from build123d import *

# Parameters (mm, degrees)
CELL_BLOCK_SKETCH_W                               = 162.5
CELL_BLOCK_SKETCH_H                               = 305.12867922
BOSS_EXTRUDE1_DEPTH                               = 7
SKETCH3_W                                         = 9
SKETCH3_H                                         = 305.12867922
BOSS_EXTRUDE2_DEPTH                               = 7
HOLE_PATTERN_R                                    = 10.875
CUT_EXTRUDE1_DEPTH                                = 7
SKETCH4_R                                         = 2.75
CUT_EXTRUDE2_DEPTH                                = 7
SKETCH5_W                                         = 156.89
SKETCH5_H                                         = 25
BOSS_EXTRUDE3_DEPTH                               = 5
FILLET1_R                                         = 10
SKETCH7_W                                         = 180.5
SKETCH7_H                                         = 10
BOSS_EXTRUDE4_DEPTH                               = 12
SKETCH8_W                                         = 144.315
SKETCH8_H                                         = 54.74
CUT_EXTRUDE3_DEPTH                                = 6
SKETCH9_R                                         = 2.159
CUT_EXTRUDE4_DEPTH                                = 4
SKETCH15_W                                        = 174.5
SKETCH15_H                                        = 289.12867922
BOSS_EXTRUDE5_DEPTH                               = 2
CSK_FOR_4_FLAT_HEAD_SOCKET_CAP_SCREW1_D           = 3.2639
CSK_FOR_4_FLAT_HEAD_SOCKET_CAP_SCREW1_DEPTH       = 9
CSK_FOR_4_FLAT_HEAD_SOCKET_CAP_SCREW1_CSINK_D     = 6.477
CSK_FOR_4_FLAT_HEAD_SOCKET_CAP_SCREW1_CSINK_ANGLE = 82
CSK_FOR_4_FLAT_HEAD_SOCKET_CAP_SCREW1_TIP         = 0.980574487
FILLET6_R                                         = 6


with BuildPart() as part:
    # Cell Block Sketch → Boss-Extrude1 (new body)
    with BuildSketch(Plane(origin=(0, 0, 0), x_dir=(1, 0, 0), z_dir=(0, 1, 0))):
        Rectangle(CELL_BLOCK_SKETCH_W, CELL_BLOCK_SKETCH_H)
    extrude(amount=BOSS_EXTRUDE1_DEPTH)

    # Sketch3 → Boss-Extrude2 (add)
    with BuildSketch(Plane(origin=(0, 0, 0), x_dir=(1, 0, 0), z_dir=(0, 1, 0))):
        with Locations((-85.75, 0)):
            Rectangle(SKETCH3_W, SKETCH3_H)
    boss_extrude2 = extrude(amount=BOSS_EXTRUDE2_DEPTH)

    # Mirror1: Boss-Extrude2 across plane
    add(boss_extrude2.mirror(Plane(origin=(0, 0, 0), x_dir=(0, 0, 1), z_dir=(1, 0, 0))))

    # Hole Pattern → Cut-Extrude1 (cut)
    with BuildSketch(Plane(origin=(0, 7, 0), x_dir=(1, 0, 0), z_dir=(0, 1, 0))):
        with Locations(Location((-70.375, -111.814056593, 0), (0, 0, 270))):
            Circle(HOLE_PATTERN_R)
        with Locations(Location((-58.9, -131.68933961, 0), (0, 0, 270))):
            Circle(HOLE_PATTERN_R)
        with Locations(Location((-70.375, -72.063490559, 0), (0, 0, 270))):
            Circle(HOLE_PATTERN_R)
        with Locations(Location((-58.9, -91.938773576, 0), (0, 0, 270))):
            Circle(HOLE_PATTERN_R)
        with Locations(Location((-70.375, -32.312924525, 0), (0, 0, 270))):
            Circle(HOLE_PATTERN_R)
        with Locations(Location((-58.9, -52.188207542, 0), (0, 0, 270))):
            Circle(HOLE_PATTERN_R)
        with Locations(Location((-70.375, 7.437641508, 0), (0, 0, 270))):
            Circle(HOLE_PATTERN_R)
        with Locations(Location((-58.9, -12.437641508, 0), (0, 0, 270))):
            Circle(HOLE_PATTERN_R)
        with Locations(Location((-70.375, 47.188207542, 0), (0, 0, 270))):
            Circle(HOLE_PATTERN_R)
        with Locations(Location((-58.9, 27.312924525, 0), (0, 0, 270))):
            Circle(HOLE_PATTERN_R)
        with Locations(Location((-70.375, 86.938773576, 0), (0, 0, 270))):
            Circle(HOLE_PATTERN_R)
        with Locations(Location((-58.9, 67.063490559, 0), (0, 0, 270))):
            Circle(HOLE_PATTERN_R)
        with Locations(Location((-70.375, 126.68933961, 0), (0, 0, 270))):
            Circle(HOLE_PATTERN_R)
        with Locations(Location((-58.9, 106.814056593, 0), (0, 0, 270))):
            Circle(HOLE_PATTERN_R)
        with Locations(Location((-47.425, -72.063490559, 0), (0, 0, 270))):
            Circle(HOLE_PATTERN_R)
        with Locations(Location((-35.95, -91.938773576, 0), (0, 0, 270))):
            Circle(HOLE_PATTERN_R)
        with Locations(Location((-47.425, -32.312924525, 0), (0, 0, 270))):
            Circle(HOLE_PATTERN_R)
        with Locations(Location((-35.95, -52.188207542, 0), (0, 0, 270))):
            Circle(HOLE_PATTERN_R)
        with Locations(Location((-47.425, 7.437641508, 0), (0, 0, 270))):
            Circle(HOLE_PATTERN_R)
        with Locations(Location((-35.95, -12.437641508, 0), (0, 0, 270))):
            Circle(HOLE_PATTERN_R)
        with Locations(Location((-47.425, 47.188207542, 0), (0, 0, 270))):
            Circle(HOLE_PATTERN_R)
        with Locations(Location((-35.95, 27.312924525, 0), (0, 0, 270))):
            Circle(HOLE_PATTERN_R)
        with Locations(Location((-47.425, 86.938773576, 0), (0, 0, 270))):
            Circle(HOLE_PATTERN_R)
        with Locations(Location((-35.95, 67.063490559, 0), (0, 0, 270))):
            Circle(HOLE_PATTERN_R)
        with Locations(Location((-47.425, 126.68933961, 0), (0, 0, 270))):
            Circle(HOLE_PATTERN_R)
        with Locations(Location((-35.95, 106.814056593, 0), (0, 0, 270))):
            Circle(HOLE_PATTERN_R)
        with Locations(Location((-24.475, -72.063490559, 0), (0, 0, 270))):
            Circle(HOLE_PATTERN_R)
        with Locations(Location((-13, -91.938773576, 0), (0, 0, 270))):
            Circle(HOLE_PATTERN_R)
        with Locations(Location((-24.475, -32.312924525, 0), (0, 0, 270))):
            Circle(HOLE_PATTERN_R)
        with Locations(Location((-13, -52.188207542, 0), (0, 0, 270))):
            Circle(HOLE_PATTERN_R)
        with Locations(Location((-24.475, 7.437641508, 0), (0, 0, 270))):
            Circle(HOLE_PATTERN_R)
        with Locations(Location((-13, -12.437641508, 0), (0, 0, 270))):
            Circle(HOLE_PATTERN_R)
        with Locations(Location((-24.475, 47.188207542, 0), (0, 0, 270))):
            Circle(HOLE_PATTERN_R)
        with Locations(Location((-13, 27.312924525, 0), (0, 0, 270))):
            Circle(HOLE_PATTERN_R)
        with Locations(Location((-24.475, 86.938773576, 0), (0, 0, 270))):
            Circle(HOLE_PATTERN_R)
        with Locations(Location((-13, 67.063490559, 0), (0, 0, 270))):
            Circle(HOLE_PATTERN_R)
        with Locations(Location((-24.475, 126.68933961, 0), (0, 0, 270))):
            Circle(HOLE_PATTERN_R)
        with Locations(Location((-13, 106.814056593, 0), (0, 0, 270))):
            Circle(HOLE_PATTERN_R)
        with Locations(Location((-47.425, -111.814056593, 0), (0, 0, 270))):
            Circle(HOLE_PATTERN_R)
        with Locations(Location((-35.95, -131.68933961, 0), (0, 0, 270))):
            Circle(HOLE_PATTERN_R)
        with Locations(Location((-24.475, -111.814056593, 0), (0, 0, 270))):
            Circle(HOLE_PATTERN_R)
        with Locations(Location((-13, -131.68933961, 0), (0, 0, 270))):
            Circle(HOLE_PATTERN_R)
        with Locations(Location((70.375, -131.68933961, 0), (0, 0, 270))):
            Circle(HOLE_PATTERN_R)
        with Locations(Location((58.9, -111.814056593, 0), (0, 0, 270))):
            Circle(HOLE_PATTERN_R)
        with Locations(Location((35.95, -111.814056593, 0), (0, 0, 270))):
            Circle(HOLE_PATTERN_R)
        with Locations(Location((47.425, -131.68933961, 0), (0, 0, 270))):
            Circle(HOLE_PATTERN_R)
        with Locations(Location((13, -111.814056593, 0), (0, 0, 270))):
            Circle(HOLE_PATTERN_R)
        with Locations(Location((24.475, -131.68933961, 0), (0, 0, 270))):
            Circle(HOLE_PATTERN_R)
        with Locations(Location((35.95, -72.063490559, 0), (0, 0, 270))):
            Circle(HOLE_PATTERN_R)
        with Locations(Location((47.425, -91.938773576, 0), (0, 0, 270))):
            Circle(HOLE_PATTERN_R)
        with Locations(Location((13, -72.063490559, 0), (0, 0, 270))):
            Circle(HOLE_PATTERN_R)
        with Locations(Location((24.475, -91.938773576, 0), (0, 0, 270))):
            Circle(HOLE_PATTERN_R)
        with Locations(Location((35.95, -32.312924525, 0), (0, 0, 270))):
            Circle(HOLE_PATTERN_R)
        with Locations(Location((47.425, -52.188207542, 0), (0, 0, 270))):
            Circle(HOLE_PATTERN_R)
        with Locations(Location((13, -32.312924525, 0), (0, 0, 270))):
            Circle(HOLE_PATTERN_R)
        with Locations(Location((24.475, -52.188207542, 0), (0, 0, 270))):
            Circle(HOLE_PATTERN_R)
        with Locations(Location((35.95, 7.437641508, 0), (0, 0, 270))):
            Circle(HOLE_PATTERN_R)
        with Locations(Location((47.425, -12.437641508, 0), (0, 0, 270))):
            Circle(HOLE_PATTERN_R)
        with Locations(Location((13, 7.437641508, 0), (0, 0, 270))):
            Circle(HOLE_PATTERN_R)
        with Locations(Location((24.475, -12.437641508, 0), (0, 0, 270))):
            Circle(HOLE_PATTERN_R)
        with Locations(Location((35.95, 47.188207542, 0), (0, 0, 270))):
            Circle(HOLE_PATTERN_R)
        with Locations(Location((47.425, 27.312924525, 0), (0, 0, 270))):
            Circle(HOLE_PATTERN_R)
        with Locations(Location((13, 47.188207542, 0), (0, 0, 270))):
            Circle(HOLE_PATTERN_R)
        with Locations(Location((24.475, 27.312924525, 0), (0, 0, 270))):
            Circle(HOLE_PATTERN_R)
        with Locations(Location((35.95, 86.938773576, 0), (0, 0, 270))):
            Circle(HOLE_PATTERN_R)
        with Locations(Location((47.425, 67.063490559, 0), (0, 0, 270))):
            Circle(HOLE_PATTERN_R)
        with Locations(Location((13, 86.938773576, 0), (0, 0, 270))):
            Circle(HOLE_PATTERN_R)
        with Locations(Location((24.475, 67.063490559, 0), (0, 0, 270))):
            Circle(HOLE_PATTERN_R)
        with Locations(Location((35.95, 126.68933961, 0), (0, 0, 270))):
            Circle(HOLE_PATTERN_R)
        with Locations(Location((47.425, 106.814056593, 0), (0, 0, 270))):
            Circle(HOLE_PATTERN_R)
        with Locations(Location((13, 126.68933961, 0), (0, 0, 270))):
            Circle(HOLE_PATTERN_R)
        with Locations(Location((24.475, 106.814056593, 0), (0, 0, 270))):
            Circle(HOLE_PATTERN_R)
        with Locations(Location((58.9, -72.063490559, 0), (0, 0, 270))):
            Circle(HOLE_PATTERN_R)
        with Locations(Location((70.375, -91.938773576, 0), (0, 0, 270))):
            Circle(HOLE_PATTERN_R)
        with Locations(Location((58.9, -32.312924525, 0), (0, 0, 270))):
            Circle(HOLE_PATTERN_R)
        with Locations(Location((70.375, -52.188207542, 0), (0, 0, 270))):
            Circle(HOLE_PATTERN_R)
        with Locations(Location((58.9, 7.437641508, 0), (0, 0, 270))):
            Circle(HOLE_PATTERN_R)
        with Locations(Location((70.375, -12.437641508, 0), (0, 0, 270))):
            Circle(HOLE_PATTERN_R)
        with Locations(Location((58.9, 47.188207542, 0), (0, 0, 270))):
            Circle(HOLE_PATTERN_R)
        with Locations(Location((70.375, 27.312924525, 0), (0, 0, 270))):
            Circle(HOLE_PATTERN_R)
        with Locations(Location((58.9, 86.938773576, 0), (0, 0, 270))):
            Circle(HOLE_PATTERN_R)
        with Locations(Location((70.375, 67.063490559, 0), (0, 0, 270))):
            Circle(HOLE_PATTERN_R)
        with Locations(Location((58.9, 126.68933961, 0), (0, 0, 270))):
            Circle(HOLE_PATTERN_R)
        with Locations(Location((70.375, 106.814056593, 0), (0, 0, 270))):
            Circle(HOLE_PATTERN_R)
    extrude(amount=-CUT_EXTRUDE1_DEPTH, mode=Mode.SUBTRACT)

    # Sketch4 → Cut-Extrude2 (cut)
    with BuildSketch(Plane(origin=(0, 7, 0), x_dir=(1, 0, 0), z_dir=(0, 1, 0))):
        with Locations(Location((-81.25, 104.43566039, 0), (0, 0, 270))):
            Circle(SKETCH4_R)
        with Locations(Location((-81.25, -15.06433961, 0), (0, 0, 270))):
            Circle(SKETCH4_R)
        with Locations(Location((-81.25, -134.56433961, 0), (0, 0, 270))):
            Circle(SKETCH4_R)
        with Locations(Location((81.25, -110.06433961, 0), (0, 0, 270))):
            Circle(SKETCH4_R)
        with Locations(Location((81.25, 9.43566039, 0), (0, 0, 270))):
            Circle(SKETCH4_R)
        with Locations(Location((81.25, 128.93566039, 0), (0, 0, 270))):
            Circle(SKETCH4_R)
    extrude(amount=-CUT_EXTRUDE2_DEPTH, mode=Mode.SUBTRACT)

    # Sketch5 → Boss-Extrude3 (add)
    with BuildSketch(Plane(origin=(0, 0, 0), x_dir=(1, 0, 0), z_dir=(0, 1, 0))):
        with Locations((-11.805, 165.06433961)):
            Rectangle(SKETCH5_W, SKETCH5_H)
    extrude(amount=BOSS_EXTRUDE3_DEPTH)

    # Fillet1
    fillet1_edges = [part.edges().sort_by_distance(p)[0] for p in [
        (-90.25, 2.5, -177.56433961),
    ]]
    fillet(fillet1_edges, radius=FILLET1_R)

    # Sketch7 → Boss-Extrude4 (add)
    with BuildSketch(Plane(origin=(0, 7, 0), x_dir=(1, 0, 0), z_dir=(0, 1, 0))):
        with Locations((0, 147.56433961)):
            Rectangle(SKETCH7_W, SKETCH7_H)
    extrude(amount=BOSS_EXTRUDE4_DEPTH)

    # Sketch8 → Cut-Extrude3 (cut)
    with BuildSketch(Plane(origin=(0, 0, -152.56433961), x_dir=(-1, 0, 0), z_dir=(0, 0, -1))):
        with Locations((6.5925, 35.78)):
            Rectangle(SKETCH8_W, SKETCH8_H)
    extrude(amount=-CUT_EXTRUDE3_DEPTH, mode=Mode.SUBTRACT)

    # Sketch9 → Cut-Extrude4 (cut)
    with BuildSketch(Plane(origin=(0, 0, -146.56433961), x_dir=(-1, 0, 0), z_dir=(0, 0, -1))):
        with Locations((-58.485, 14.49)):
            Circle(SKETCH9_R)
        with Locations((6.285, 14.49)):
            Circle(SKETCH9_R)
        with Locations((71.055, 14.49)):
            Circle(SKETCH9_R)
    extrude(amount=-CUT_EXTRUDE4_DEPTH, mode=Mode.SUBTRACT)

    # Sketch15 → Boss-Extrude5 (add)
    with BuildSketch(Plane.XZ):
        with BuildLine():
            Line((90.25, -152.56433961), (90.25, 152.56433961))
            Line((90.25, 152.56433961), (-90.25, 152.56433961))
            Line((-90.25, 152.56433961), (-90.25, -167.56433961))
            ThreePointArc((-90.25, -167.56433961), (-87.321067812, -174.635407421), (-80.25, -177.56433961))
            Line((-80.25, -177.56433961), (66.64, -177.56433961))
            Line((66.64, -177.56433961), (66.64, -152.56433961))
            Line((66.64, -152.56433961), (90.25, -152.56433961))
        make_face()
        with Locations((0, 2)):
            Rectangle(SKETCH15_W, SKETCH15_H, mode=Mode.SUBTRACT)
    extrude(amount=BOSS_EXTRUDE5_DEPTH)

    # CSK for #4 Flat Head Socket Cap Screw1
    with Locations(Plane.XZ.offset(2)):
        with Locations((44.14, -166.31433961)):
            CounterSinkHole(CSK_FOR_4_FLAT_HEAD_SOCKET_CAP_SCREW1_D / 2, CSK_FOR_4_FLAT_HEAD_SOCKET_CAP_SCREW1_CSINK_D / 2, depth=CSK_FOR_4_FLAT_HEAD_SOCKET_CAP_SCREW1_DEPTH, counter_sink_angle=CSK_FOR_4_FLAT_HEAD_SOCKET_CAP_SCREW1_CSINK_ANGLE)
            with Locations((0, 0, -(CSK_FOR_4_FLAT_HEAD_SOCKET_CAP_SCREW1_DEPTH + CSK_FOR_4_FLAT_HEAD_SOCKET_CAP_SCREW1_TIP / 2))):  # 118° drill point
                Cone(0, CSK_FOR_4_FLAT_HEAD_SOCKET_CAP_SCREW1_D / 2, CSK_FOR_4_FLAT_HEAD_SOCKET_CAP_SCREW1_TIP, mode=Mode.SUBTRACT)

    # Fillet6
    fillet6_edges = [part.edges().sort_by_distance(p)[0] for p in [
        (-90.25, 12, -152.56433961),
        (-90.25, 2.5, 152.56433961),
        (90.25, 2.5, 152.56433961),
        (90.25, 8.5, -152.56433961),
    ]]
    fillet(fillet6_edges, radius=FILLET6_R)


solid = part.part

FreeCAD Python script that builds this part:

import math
import FreeCAD as App
import Part
import Sketcher
from FreeCAD import Vector
Q = App.Units.Quantity


def edges_at(feature, points):
    """Names of the edges that pass closest to the given points."""
    edges = feature.Shape.Edges
    near = lambda p: min(range(len(edges)), key=lambda i: edges[i].distToShape(Part.Vertex(*p))[0])
    return sorted({f"Edge{near(p) + 1}" for p in points})


def add_polygon(sketch, points):
    """Adds a closed chain of lines whose ends are joined by coincident constraints."""
    first, n = sketch.GeometryCount, len(points)
    for a, b in zip(points, points[1:] + points[:1]):
        sketch.addGeometry(Part.LineSegment(App.Vector(*a, 0), App.Vector(*b, 0)), False)
    for i in range(n):
        sketch.addConstraint(Sketcher.Constraint("Coincident", first + i, 2, first + (i + 1) % n, 1))

doc = App.newDocument("Part")
body = doc.addObject("PartDesign::Body", "Body")

# Sketch on XZ plane
sketch1 = doc.addObject("Sketcher::SketchObject", "Sketch")
body.addObject(sketch1)
sketch1.AttachmentSupport = (doc.XZ_Plane, [""])
sketch1.MapMode = "FlatFace"
add_polygon(sketch1, [(-81.25, -152.56434), (-81.25, 152.56434), (81.25, 152.56434), (81.25, -152.56434)])  # lines 0-3
sketch1.addConstraint(Sketcher.Constraint("Vertical", 0))
sketch1.addConstraint(Sketcher.Constraint("Horizontal", 1))
sketch1.addConstraint(Sketcher.Constraint("Vertical", 2))
sketch1.addConstraint(Sketcher.Constraint("Horizontal", 3))
sketch1.addConstraint(Sketcher.Constraint("Symmetric", 0, 2, 2, 2, -1, 1))
sketch1.addConstraint(Sketcher.Constraint("DistanceX", 1, 1, 1, 2, Q("162.5 mm")))
sketch1.addConstraint(Sketcher.Constraint("DistanceY", 0, 1, 0, 2, Q("305.128679 mm")))
pad1 = doc.addObject("PartDesign::Pad", "Pad")
body.addObject(pad1)
pad1.Profile = sketch1
pad1.Length = 7
pad1.Reversed = True

# Sketch on XZ plane
sketch2 = doc.addObject("Sketcher::SketchObject", "Sketch001")
body.addObject(sketch2)
sketch2.AttachmentSupport = (doc.XZ_Plane, [""])
sketch2.MapMode = "FlatFace"
add_polygon(sketch2, [(-90.25, -152.56434), (-90.25, 152.56434), (-81.25, 152.56434), (-81.25, -152.56434)])  # lines 0-3
sketch2.addConstraint(Sketcher.Constraint("Vertical", 0))
sketch2.addConstraint(Sketcher.Constraint("Horizontal", 1))
sketch2.addConstraint(Sketcher.Constraint("Vertical", 2))
sketch2.addConstraint(Sketcher.Constraint("Horizontal", 3))
sketch2.addConstraint(Sketcher.Constraint("DistanceX", 1, 1, 1, 2, Q("9 mm")))
sketch2.addConstraint(Sketcher.Constraint("DistanceX", 0, 2, -1, 1, Q("90.25 mm")))
sketch2.addConstraint(Sketcher.Constraint("DistanceY", 0, 1, 0, 2, Q("305.128679 mm")))
sketch2.addConstraint(Sketcher.Constraint("DistanceY", -1, 1, 0, 2, Q("152.56434 mm")))
pad2 = doc.addObject("PartDesign::Pad", "Pad001")
body.addObject(pad2)
pad2.Profile = sketch2
pad2.Length = 7
pad2.Reversed = True
doc.recompute()

mirrored = doc.addObject("PartDesign::Mirrored", "Mirrored")
body.addObject(mirrored)
mirrored.Originals = [pad2]
mirrored.MirrorPlane = (doc.YZ_Plane, [""])
body.Tip = mirrored

# Sketch on XZ plane
sketch3 = doc.addObject("Sketcher::SketchObject", "Sketch002")
body.addObject(sketch3)
sketch3.AttachmentSupport = (doc.XZ_Plane, [""])
sketch3.MapMode = "FlatFace"
sketch3.AttachmentOffset = App.Placement(Vector(0, 0, -7), App.Rotation())
sketch3.addGeometry(Part.Circle(Vector(-70.375, 111.814057, 0), Vector(0, 0, 1), 10.875), False)
sketch3.addGeometry(Part.Circle(Vector(-58.9, 131.68934, 0), Vector(0, 0, 1), 10.875), False)
sketch3.addGeometry(Part.Circle(Vector(-70.375, 72.063491, 0), Vector(0, 0, 1), 10.875), False)
sketch3.addGeometry(Part.Circle(Vector(-58.9, 91.938774, 0), Vector(0, 0, 1), 10.875), False)
sketch3.addGeometry(Part.Circle(Vector(-70.375, 32.312925, 0), Vector(0, 0, 1), 10.875), False)
sketch3.addGeometry(Part.Circle(Vector(-58.9, 52.188208, 0), Vector(0, 0, 1), 10.875), False)
sketch3.addGeometry(Part.Circle(Vector(-70.375, -7.437642, 0), Vector(0, 0, 1), 10.875), False)
sketch3.addGeometry(Part.Circle(Vector(-58.9, 12.437642, 0), Vector(0, 0, 1), 10.875), False)
sketch3.addGeometry(Part.Circle(Vector(-70.375, -47.188208, 0), Vector(0, 0, 1), 10.875), False)
sketch3.addGeometry(Part.Circle(Vector(-58.9, -27.312925, 0), Vector(0, 0, 1), 10.875), False)
sketch3.addGeometry(Part.Circle(Vector(-70.375, -86.938774, 0), Vector(0, 0, 1), 10.875), False)
sketch3.addGeometry(Part.Circle(Vector(-58.9, -67.063491, 0), Vector(0, 0, 1), 10.875), False)
sketch3.addGeometry(Part.Circle(Vector(-70.375, -126.68934, 0), Vector(0, 0, 1), 10.875), False)
sketch3.addGeometry(Part.Circle(Vector(-58.9, -106.814057, 0), Vector(0, 0, 1), 10.875), False)
sketch3.addGeometry(Part.Circle(Vector(-47.425, 72.063491, 0), Vector(0, 0, 1), 10.875), False)
sketch3.addGeometry(Part.Circle(Vector(-35.95, 91.938774, 0), Vector(0, 0, 1), 10.875), False)
sketch3.addGeometry(Part.Circle(Vector(-47.425, 32.312925, 0), Vector(0, 0, 1), 10.875), False)
sketch3.addGeometry(Part.Circle(Vector(-35.95, 52.188208, 0), Vector(0, 0, 1), 10.875), False)
sketch3.addGeometry(Part.Circle(Vector(-47.425, -7.437642, 0), Vector(0, 0, 1), 10.875), False)
sketch3.addGeometry(Part.Circle(Vector(-35.95, 12.437642, 0), Vector(0, 0, 1), 10.875), False)
sketch3.addGeometry(Part.Circle(Vector(-47.425, -47.188208, 0), Vector(0, 0, 1), 10.875), False)
sketch3.addGeometry(Part.Circle(Vector(-35.95, -27.312925, 0), Vector(0, 0, 1), 10.875), False)
sketch3.addGeometry(Part.Circle(Vector(-47.425, -86.938774, 0), Vector(0, 0, 1), 10.875), False)
sketch3.addGeometry(Part.Circle(Vector(-35.95, -67.063491, 0), Vector(0, 0, 1), 10.875), False)
sketch3.addGeometry(Part.Circle(Vector(-47.425, -126.68934, 0), Vector(0, 0, 1), 10.875), False)
sketch3.addGeometry(Part.Circle(Vector(-35.95, -106.814057, 0), Vector(0, 0, 1), 10.875), False)
sketch3.addGeometry(Part.Circle(Vector(-24.475, 72.063491, 0), Vector(0, 0, 1), 10.875), False)
sketch3.addGeometry(Part.Circle(Vector(-13, 91.938774, 0), Vector(0, 0, 1), 10.875), False)
sketch3.addGeometry(Part.Circle(Vector(-24.475, 32.312925, 0), Vector(0, 0, 1), 10.875), False)
sketch3.addGeometry(Part.Circle(Vector(-13, 52.188208, 0), Vector(0, 0, 1), 10.875), False)
sketch3.addGeometry(Part.Circle(Vector(-24.475, -7.437642, 0), Vector(0, 0, 1), 10.875), False)
sketch3.addGeometry(Part.Circle(Vector(-13, 12.437642, 0), Vector(0, 0, 1), 10.875), False)
sketch3.addGeometry(Part.Circle(Vector(-24.475, -47.188208, 0), Vector(0, 0, 1), 10.875), False)
sketch3.addGeometry(Part.Circle(Vector(-13, -27.312925, 0), Vector(0, 0, 1), 10.875), False)
sketch3.addGeometry(Part.Circle(Vector(-24.475, -86.938774, 0), Vector(0, 0, 1), 10.875), False)
sketch3.addGeometry(Part.Circle(Vector(-13, -67.063491, 0), Vector(0, 0, 1), 10.875), False)
sketch3.addGeometry(Part.Circle(Vector(-24.475, -126.68934, 0), Vector(0, 0, 1), 10.875), False)
sketch3.addGeometry(Part.Circle(Vector(-13, -106.814057, 0), Vector(0, 0, 1), 10.875), False)
sketch3.addGeometry(Part.Circle(Vector(-47.425, 111.814057, 0), Vector(0, 0, 1), 10.875), False)
sketch3.addGeometry(Part.Circle(Vector(-35.95, 131.68934, 0), Vector(0, 0, 1), 10.875), False)
sketch3.addGeometry(Part.Circle(Vector(-24.475, 111.814057, 0), Vector(0, 0, 1), 10.875), False)
sketch3.addGeometry(Part.Circle(Vector(-13, 131.68934, 0), Vector(0, 0, 1), 10.875), False)
sketch3.addGeometry(Part.Circle(Vector(70.375, 131.68934, 0), Vector(0, 0, 1), 10.875), False)
sketch3.addGeometry(Part.Circle(Vector(58.9, 111.814057, 0), Vector(0, 0, 1), 10.875), False)
sketch3.addGeometry(Part.Circle(Vector(35.95, 111.814057, 0), Vector(0, 0, 1), 10.875), False)
sketch3.addGeometry(Part.Circle(Vector(47.425, 131.68934, 0), Vector(0, 0, 1), 10.875), False)
sketch3.addGeometry(Part.Circle(Vector(13, 111.814057, 0), Vector(0, 0, 1), 10.875), False)
sketch3.addGeometry(Part.Circle(Vector(24.475, 131.68934, 0), Vector(0, 0, 1), 10.875), False)
sketch3.addGeometry(Part.Circle(Vector(35.95, 72.063491, 0), Vector(0, 0, 1), 10.875), False)
sketch3.addGeometry(Part.Circle(Vector(47.425, 91.938774, 0), Vector(0, 0, 1), 10.875), False)
sketch3.addGeometry(Part.Circle(Vector(13, 72.063491, 0), Vector(0, 0, 1), 10.875), False)
sketch3.addGeometry(Part.Circle(Vector(24.475, 91.938774, 0), Vector(0, 0, 1), 10.875), False)
sketch3.addGeometry(Part.Circle(Vector(35.95, 32.312925, 0), Vector(0, 0, 1), 10.875), False)
sketch3.addGeometry(Part.Circle(Vector(47.425, 52.188208, 0), Vector(0, 0, 1), 10.875), False)
sketch3.addGeometry(Part.Circle(Vector(13, 32.312925, 0), Vector(0, 0, 1), 10.875), False)
sketch3.addGeometry(Part.Circle(Vector(24.475, 52.188208, 0), Vector(0, 0, 1), 10.875), False)
sketch3.addGeometry(Part.Circle(Vector(35.95, -7.437642, 0), Vector(0, 0, 1), 10.875), False)
sketch3.addGeometry(Part.Circle(Vector(47.425, 12.437642, 0), Vector(0, 0, 1), 10.875), False)
sketch3.addGeometry(Part.Circle(Vector(13, -7.437642, 0), Vector(0, 0, 1), 10.875), False)
sketch3.addGeometry(Part.Circle(Vector(24.475, 12.437642, 0), Vector(0, 0, 1), 10.875), False)
sketch3.addGeometry(Part.Circle(Vector(35.95, -47.188208, 0), Vector(0, 0, 1), 10.875), False)
sketch3.addGeometry(Part.Circle(Vector(47.425, -27.312925, 0), Vector(0, 0, 1), 10.875), False)
sketch3.addGeometry(Part.Circle(Vector(13, -47.188208, 0), Vector(0, 0, 1), 10.875), False)
sketch3.addGeometry(Part.Circle(Vector(24.475, -27.312925, 0), Vector(0, 0, 1), 10.875), False)
sketch3.addGeometry(Part.Circle(Vector(35.95, -86.938774, 0), Vector(0, 0, 1), 10.875), False)
sketch3.addGeometry(Part.Circle(Vector(47.425, -67.063491, 0), Vector(0, 0, 1), 10.875), False)
sketch3.addGeometry(Part.Circle(Vector(13, -86.938774, 0), Vector(0, 0, 1), 10.875), False)
sketch3.addGeometry(Part.Circle(Vector(24.475, -67.063491, 0), Vector(0, 0, 1), 10.875), False)
sketch3.addGeometry(Part.Circle(Vector(35.95, -126.68934, 0), Vector(0, 0, 1), 10.875), False)
sketch3.addGeometry(Part.Circle(Vector(47.425, -106.814057, 0), Vector(0, 0, 1), 10.875), False)
sketch3.addGeometry(Part.Circle(Vector(13, -126.68934, 0), Vector(0, 0, 1), 10.875), False)
sketch3.addGeometry(Part.Circle(Vector(24.475, -106.814057, 0), Vector(0, 0, 1), 10.875), False)
sketch3.addGeometry(Part.Circle(Vector(58.9, 72.063491, 0), Vector(0, 0, 1), 10.875), False)
sketch3.addGeometry(Part.Circle(Vector(70.375, 91.938774, 0), Vector(0, 0, 1), 10.875), False)
sketch3.addGeometry(Part.Circle(Vector(58.9, 32.312925, 0), Vector(0, 0, 1), 10.875), False)
sketch3.addGeometry(Part.Circle(Vector(70.375, 52.188208, 0), Vector(0, 0, 1), 10.875), False)
sketch3.addGeometry(Part.Circle(Vector(58.9, -7.437642, 0), Vector(0, 0, 1), 10.875), False)
sketch3.addGeometry(Part.Circle(Vector(70.375, 12.437642, 0), Vector(0, 0, 1), 10.875), False)
sketch3.addGeometry(Part.Circle(Vector(58.9, -47.188208, 0), Vector(0, 0, 1), 10.875), False)
sketch3.addGeometry(Part.Circle(Vector(70.375, -27.312925, 0), Vector(0, 0, 1), 10.875), False)
sketch3.addGeometry(Part.Circle(Vector(58.9, -86.938774, 0), Vector(0, 0, 1), 10.875), False)
sketch3.addGeometry(Part.Circle(Vector(70.375, -67.063491, 0), Vector(0, 0, 1), 10.875), False)
sketch3.addGeometry(Part.Circle(Vector(58.9, -126.68934, 0), Vector(0, 0, 1), 10.875), False)
sketch3.addGeometry(Part.Circle(Vector(70.375, -106.814057, 0), Vector(0, 0, 1), 10.875), False)
sketch3.addConstraint(Sketcher.Constraint("Equal", 0, 1))
sketch3.addConstraint(Sketcher.Constraint("Equal", 1, 2))
sketch3.addConstraint(Sketcher.Constraint("Equal", 2, 3))
sketch3.addConstraint(Sketcher.Constraint("Equal", 3, 4))
sketch3.addConstraint(Sketcher.Constraint("Equal", 4, 5))
sketch3.addConstraint(Sketcher.Constraint("Equal", 5, 6))
sketch3.addConstraint(Sketcher.Constraint("Equal", 6, 7))
sketch3.addConstraint(Sketcher.Constraint("Equal", 7, 8))
sketch3.addConstraint(Sketcher.Constraint("Equal", 8, 9))
sketch3.addConstraint(Sketcher.Constraint("Equal", 9, 10))
sketch3.addConstraint(Sketcher.Constraint("Equal", 10, 11))
sketch3.addConstraint(Sketcher.Constraint("Equal", 11, 12))
sketch3.addConstraint(Sketcher.Constraint("Equal", 12, 13))
sketch3.addConstraint(Sketcher.Constraint("Equal", 13, 14))
sketch3.addConstraint(Sketcher.Constraint("Equal", 14, 15))
sketch3.addConstraint(Sketcher.Constraint("Equal", 15, 16))
sketch3.addConstraint(Sketcher.Constraint("Equal", 16, 17))
sketch3.addConstraint(Sketcher.Constraint("Equal", 17, 18))
sketch3.addConstraint(Sketcher.Constraint("Equal", 18, 19))
sketch3.addConstraint(Sketcher.Constraint("Equal", 19, 20))
sketch3.addConstraint(Sketcher.Constraint("Equal", 20, 21))
sketch3.addConstraint(Sketcher.Constraint("Equal", 21, 22))
sketch3.addConstraint(Sketcher.Constraint("Equal", 22, 23))
sketch3.addConstraint(Sketcher.Constraint("Equal", 23, 24))
sketch3.addConstraint(Sketcher.Constraint("Equal", 24, 25))
sketch3.addConstraint(Sketcher.Constraint("Equal", 25, 26))
sketch3.addConstraint(Sketcher.Constraint("Equal", 26, 27))
sketch3.addConstraint(Sketcher.Constraint("Equal", 27, 28))
sketch3.addConstraint(Sketcher.Constraint("Equal", 28, 29))
sketch3.addConstraint(Sketcher.Constraint("Equal", 29, 30))
sketch3.addConstraint(Sketcher.Constraint("Equal", 30, 31))
sketch3.addConstraint(Sketcher.Constraint("Equal", 31, 32))
sketch3.addConstraint(Sketcher.Constraint("Equal", 32, 33))
sketch3.addConstraint(Sketcher.Constraint("Equal", 33, 34))
sketch3.addConstraint(Sketcher.Constraint("Equal", 34, 35))
sketch3.addConstraint(Sketcher.Constraint("Equal", 35, 36))
sketch3.addConstraint(Sketcher.Constraint("Equal", 36, 37))
sketch3.addConstraint(Sketcher.Constraint("Equal", 37, 38))
sketch3.addConstraint(Sketcher.Constraint("Equal", 38, 39))
sketch3.addConstraint(Sketcher.Constraint("Equal", 39, 40))
sketch3.addConstraint(Sketcher.Constraint("Equal", 40, 41))
sketch3.addConstraint(Sketcher.Constraint("Equal", 41, 42))
sketch3.addConstraint(Sketcher.Constraint("Equal", 42, 43))
sketch3.addConstraint(Sketcher.Constraint("Equal", 43, 44))
sketch3.addConstraint(Sketcher.Constraint("Equal", 44, 45))
sketch3.addConstraint(Sketcher.Constraint("Equal", 45, 46))
sketch3.addConstraint(Sketcher.Constraint("Equal", 46, 47))
sketch3.addConstraint(Sketcher.Constraint("Equal", 47, 48))
sketch3.addConstraint(Sketcher.Constraint("Equal", 48, 49))
sketch3.addConstraint(Sketcher.Constraint("Equal", 49, 50))
sketch3.addConstraint(Sketcher.Constraint("Equal", 50, 51))
sketch3.addConstraint(Sketcher.Constraint("Equal", 51, 52))
sketch3.addConstraint(Sketcher.Constraint("Equal", 52, 53))
sketch3.addConstraint(Sketcher.Constraint("Equal", 53, 54))
sketch3.addConstraint(Sketcher.Constraint("Equal", 54, 55))
sketch3.addConstraint(Sketcher.Constraint("Equal", 55, 56))
sketch3.addConstraint(Sketcher.Constraint("Equal", 56, 57))
sketch3.addConstraint(Sketcher.Constraint("Equal", 57, 58))
sketch3.addConstraint(Sketcher.Constraint("Equal", 58, 59))
sketch3.addConstraint(Sketcher.Constraint("Equal", 59, 60))
sketch3.addConstraint(Sketcher.Constraint("Equal", 60, 61))
sketch3.addConstraint(Sketcher.Constraint("Equal", 61, 62))
sketch3.addConstraint(Sketcher.Constraint("Equal", 62, 63))
sketch3.addConstraint(Sketcher.Constraint("Equal", 63, 64))
sketch3.addConstraint(Sketcher.Constraint("Equal", 64, 65))
sketch3.addConstraint(Sketcher.Constraint("Equal", 65, 66))
sketch3.addConstraint(Sketcher.Constraint("Equal", 66, 67))
sketch3.addConstraint(Sketcher.Constraint("Equal", 67, 68))
sketch3.addConstraint(Sketcher.Constraint("Equal", 68, 69))
sketch3.addConstraint(Sketcher.Constraint("Equal", 69, 70))
sketch3.addConstraint(Sketcher.Constraint("Equal", 70, 71))
sketch3.addConstraint(Sketcher.Constraint("Equal", 71, 72))
sketch3.addConstraint(Sketcher.Constraint("Equal", 72, 73))
sketch3.addConstraint(Sketcher.Constraint("Equal", 73, 74))
sketch3.addConstraint(Sketcher.Constraint("Equal", 74, 75))
sketch3.addConstraint(Sketcher.Constraint("Equal", 75, 76))
sketch3.addConstraint(Sketcher.Constraint("Equal", 76, 77))
sketch3.addConstraint(Sketcher.Constraint("Equal", 77, 78))
sketch3.addConstraint(Sketcher.Constraint("Equal", 78, 79))
sketch3.addConstraint(Sketcher.Constraint("Equal", 79, 80))
sketch3.addConstraint(Sketcher.Constraint("Equal", 80, 81))
sketch3.addConstraint(Sketcher.Constraint("Equal", 81, 82))
sketch3.addConstraint(Sketcher.Constraint("Equal", 82, 83))
sketch3.addConstraint(Sketcher.Constraint("Horizontal", 2, 3, 14, 3))
sketch3.addConstraint(Sketcher.Constraint("Horizontal", 3, 3, 15, 3))
sketch3.addConstraint(Sketcher.Constraint("Horizontal", 4, 3, 16, 3))
sketch3.addConstraint(Sketcher.Constraint("Horizontal", 5, 3, 17, 3))
sketch3.addConstraint(Sketcher.Constraint("Horizontal", 6, 3, 18, 3))
sketch3.addConstraint(Sketcher.Constraint("Horizontal", 7, 3, 19, 3))
sketch3.addConstraint(Sketcher.Constraint("Horizontal", 8, 3, 20, 3))
sketch3.addConstraint(Sketcher.Constraint("Horizontal", 9, 3, 21, 3))
sketch3.addConstraint(Sketcher.Constraint("Horizontal", 10, 3, 22, 3))
sketch3.addConstraint(Sketcher.Constraint("Horizontal", 11, 3, 23, 3))
sketch3.addConstraint(Sketcher.Constraint("Horizontal", 12, 3, 24, 3))
sketch3.addConstraint(Sketcher.Constraint("Horizontal", 13, 3, 25, 3))
sketch3.addConstraint(Sketcher.Constraint("Horizontal", 14, 3, 26, 3))
sketch3.addConstraint(Sketcher.Constraint("Horizontal", 15, 3, 27, 3))
sketch3.addConstraint(Sketcher.Constraint("Horizontal", 16, 3, 28, 3))
sketch3.addConstraint(Sketcher.Constraint("Horizontal", 17, 3, 29, 3))
sketch3.addConstraint(Sketcher.Constraint("Horizontal", 18, 3, 30, 3))
sketch3.addConstraint(Sketcher.Constraint("Horizontal", 19, 3, 31, 3))
sketch3.addConstraint(Sketcher.Constraint("Horizontal", 20, 3, 32, 3))
sketch3.addConstraint(Sketcher.Constraint("Horizontal", 21, 3, 33, 3))
sketch3.addConstraint(Sketcher.Constraint("Horizontal", 22, 3, 34, 3))
sketch3.addConstraint(Sketcher.Constraint("Horizontal", 23, 3, 35, 3))
sketch3.addConstraint(Sketcher.Constraint("Horizontal", 24, 3, 36, 3))
sketch3.addConstraint(Sketcher.Constraint("Horizontal", 25, 3, 37, 3))
sketch3.addConstraint(Sketcher.Constraint("Horizontal", 0, 3, 38, 3))
sketch3.addConstraint(Sketcher.Constraint("Horizontal", 1, 3, 39, 3))
sketch3.addConstraint(Sketcher.Constraint("Horizontal", 38, 3, 40, 3))
sketch3.addConstraint(Sketcher.Constraint("Horizontal", 39, 3, 41, 3))
sketch3.addConstraint(Sketcher.Constraint("Horizontal", 41, 3, 42, 3))
sketch3.addConstraint(Sketcher.Constraint("Horizontal", 40, 3, 43, 3))
sketch3.addConstraint(Sketcher.Constraint("Horizontal", 43, 3, 44, 3))
sketch3.addConstraint(Sketcher.Constraint("Horizontal", 42, 3, 45, 3))
sketch3.addConstraint(Sketcher.Constraint("Horizontal", 44, 3, 46, 3))
sketch3.addConstraint(Sketcher.Constraint("Horizontal", 45, 3, 47, 3))
sketch3.addConstraint(Sketcher.Constraint("Horizontal", 26, 3, 48, 3))
sketch3.addConstraint(Sketcher.Constraint("Horizontal", 27, 3, 49, 3))
sketch3.addConstraint(Sketcher.Constraint("Horizontal", 48, 3, 50, 3))
sketch3.addConstraint(Sketcher.Constraint("Horizontal", 49, 3, 51, 3))
sketch3.addConstraint(Sketcher.Constraint("Horizontal", 28, 3, 52, 3))
sketch3.addConstraint(Sketcher.Constraint("Horizontal", 29, 3, 53, 3))
sketch3.addConstraint(Sketcher.Constraint("Horizontal", 52, 3, 54, 3))
sketch3.addConstraint(Sketcher.Constraint("Horizontal", 53, 3, 55, 3))
sketch3.addConstraint(Sketcher.Constraint("Horizontal", 30, 3, 56, 3))
sketch3.addConstraint(Sketcher.Constraint("Horizontal", 31, 3, 57, 3))
sketch3.addConstraint(Sketcher.Constraint("Horizontal", 56, 3, 58, 3))
sketch3.addConstraint(Sketcher.Constraint("Horizontal", 57, 3, 59, 3))
sketch3.addConstraint(Sketcher.Constraint("Horizontal", 32, 3, 60, 3))
sketch3.addConstraint(Sketcher.Constraint("Horizontal", 33, 3, 61, 3))
sketch3.addConstraint(Sketcher.Constraint("Horizontal", 60, 3, 62, 3))
sketch3.addConstraint(Sketcher.Constraint("Horizontal", 61, 3, 63, 3))
sketch3.addConstraint(Sketcher.Constraint("Horizontal", 34, 3, 64, 3))
sketch3.addConstraint(Sketcher.Constraint("Horizontal", 35, 3, 65, 3))
sketch3.addConstraint(Sketcher.Constraint("Horizontal", 64, 3, 66, 3))
sketch3.addConstraint(Sketcher.Constraint("Horizontal", 65, 3, 67, 3))
sketch3.addConstraint(Sketcher.Constraint("Horizontal", 36, 3, 68, 3))
sketch3.addConstraint(Sketcher.Constraint("Horizontal", 37, 3, 69, 3))
sketch3.addConstraint(Sketcher.Constraint("Horizontal", 68, 3, 70, 3))
sketch3.addConstraint(Sketcher.Constraint("Horizontal", 69, 3, 71, 3))
sketch3.addConstraint(Sketcher.Constraint("Horizontal", 50, 3, 72, 3))
sketch3.addConstraint(Sketcher.Constraint("Horizontal", 51, 3, 73, 3))
sketch3.addConstraint(Sketcher.Constraint("Horizontal", 54, 3, 74, 3))
sketch3.addConstraint(Sketcher.Constraint("Horizontal", 55, 3, 75, 3))
sketch3.addConstraint(Sketcher.Constraint("Horizontal", 58, 3, 76, 3))
sketch3.addConstraint(Sketcher.Constraint("Horizontal", 59, 3, 77, 3))
sketch3.addConstraint(Sketcher.Constraint("Horizontal", 62, 3, 78, 3))
sketch3.addConstraint(Sketcher.Constraint("Horizontal", 63, 3, 79, 3))
sketch3.addConstraint(Sketcher.Constraint("Horizontal", 66, 3, 80, 3))
sketch3.addConstraint(Sketcher.Constraint("Horizontal", 67, 3, 81, 3))
sketch3.addConstraint(Sketcher.Constraint("Horizontal", 70, 3, 82, 3))
sketch3.addConstraint(Sketcher.Constraint("Horizontal", 71, 3, 83, 3))
sketch3.addConstraint(Sketcher.Constraint("Vertical", 0, 3, 2, 3))
sketch3.addConstraint(Sketcher.Constraint("Vertical", 1, 3, 3, 3))
sketch3.addConstraint(Sketcher.Constraint("Vertical", 2, 3, 4, 3))
sketch3.addConstraint(Sketcher.Constraint("Vertical", 3, 3, 5, 3))
sketch3.addConstraint(Sketcher.Constraint("Vertical", 4, 3, 6, 3))
sketch3.addConstraint(Sketcher.Constraint("Vertical", 5, 3, 7, 3))
sketch3.addConstraint(Sketcher.Constraint("Vertical", 6, 3, 8, 3))
sketch3.addConstraint(Sketcher.Constraint("Vertical", 7, 3, 9, 3))
sketch3.addConstraint(Sketcher.Constraint("Vertical", 8, 3, 10, 3))
sketch3.addConstraint(Sketcher.Constraint("Vertical", 9, 3, 11, 3))
sketch3.addConstraint(Sketcher.Constraint("Vertical", 10, 3, 12, 3))
sketch3.addConstraint(Sketcher.Constraint("Vertical", 11, 3, 13, 3))
sketch3.addConstraint(Sketcher.Constraint("Vertical", 14, 3, 16, 3))
sketch3.addConstraint(Sketcher.Constraint("Vertical", 15, 3, 17, 3))
sketch3.addConstraint(Sketcher.Constraint("Vertical", 16, 3, 18, 3))
sketch3.addConstraint(Sketcher.Constraint("Vertical", 17, 3, 19, 3))
sketch3.addConstraint(Sketcher.Constraint("Vertical", 18, 3, 20, 3))
sketch3.addConstraint(Sketcher.Constraint("Vertical", 19, 3, 21, 3))
sketch3.addConstraint(Sketcher.Constraint("Vertical", 20, 3, 22, 3))
sketch3.addConstraint(Sketcher.Constraint("Vertical", 21, 3, 23, 3))
sketch3.addConstraint(Sketcher.Constraint("Vertical", 22, 3, 24, 3))
sketch3.addConstraint(Sketcher.Constraint("Vertical", 23, 3, 25, 3))
sketch3.addConstraint(Sketcher.Constraint("Vertical", 26, 3, 28, 3))
sketch3.addConstraint(Sketcher.Constraint("Vertical", 27, 3, 29, 3))
sketch3.addConstraint(Sketcher.Constraint("Vertical", 28, 3, 30, 3))
sketch3.addConstraint(Sketcher.Constraint("Vertical", 29, 3, 31, 3))
sketch3.addConstraint(Sketcher.Constraint("Vertical", 30, 3, 32, 3))
sketch3.addConstraint(Sketcher.Constraint("Vertical", 31, 3, 33, 3))
sketch3.addConstraint(Sketcher.Constraint("Vertical", 32, 3, 34, 3))
sketch3.addConstraint(Sketcher.Constraint("Vertical", 33, 3, 35, 3))
sketch3.addConstraint(Sketcher.Constraint("Vertical", 34, 3, 36, 3))
sketch3.addConstraint(Sketcher.Constraint("Vertical", 35, 3, 37, 3))
sketch3.addConstraint(Sketcher.Constraint("Vertical", 24, 3, 38, 3))
sketch3.addConstraint(Sketcher.Constraint("Vertical", 25, 3, 39, 3))
sketch3.addConstraint(Sketcher.Constraint("Vertical", 36, 3, 40, 3))
sketch3.addConstraint(Sketcher.Constraint("Vertical", 37, 3, 41, 3))
sketch3.addConstraint(Sketcher.Constraint("Vertical", 44, 3, 48, 3))
sketch3.addConstraint(Sketcher.Constraint("Vertical", 45, 3, 49, 3))
sketch3.addConstraint(Sketcher.Constraint("Vertical", 46, 3, 50, 3))
sketch3.addConstraint(Sketcher.Constraint("Vertical", 47, 3, 51, 3))
sketch3.addConstraint(Sketcher.Constraint("Vertical", 48, 3, 52, 3))
sketch3.addConstraint(Sketcher.Constraint("Vertical", 49, 3, 53, 3))
sketch3.addConstraint(Sketcher.Constraint("Vertical", 50, 3, 54, 3))
sketch3.addConstraint(Sketcher.Constraint("Vertical", 51, 3, 55, 3))
sketch3.addConstraint(Sketcher.Constraint("Vertical", 52, 3, 56, 3))
sketch3.addConstraint(Sketcher.Constraint("Vertical", 53, 3, 57, 3))
sketch3.addConstraint(Sketcher.Constraint("Vertical", 54, 3, 58, 3))
sketch3.addConstraint(Sketcher.Constraint("Vertical", 55, 3, 59, 3))
sketch3.addConstraint(Sketcher.Constraint("Vertical", 56, 3, 60, 3))
sketch3.addConstraint(Sketcher.Constraint("Vertical", 57, 3, 61, 3))
sketch3.addConstraint(Sketcher.Constraint("Vertical", 58, 3, 62, 3))
sketch3.addConstraint(Sketcher.Constraint("Vertical", 59, 3, 63, 3))
sketch3.addConstraint(Sketcher.Constraint("Vertical", 60, 3, 64, 3))
sketch3.addConstraint(Sketcher.Constraint("Vertical", 61, 3, 65, 3))
sketch3.addConstraint(Sketcher.Constraint("Vertical", 62, 3, 66, 3))
sketch3.addConstraint(Sketcher.Constraint("Vertical", 63, 3, 67, 3))
sketch3.addConstraint(Sketcher.Constraint("Vertical", 64, 3, 68, 3))
sketch3.addConstraint(Sketcher.Constraint("Vertical", 65, 3, 69, 3))
sketch3.addConstraint(Sketcher.Constraint("Vertical", 66, 3, 70, 3))
sketch3.addConstraint(Sketcher.Constraint("Vertical", 67, 3, 71, 3))
sketch3.addConstraint(Sketcher.Constraint("Vertical", 43, 3, 72, 3))
sketch3.addConstraint(Sketcher.Constraint("Vertical", 42, 3, 73, 3))
sketch3.addConstraint(Sketcher.Constraint("Vertical", 72, 3, 74, 3))
sketch3.addConstraint(Sketcher.Constraint("Vertical", 73, 3, 75, 3))
sketch3.addConstraint(Sketcher.Constraint("Vertical", 74, 3, 76, 3))
sketch3.addConstraint(Sketcher.Constraint("Vertical", 75, 3, 77, 3))
sketch3.addConstraint(Sketcher.Constraint("Vertical", 76, 3, 78, 3))
sketch3.addConstraint(Sketcher.Constraint("Vertical", 77, 3, 79, 3))
sketch3.addConstraint(Sketcher.Constraint("Vertical", 78, 3, 80, 3))
sketch3.addConstraint(Sketcher.Constraint("Vertical", 79, 3, 81, 3))
sketch3.addConstraint(Sketcher.Constraint("Vertical", 80, 3, 82, 3))
sketch3.addConstraint(Sketcher.Constraint("Vertical", 81, 3, 83, 3))
sketch3.addConstraint(Sketcher.Constraint("Diameter", 0, Q("21.75 mm")))
sketch3.addConstraint(Sketcher.Constraint("DistanceX", 27, 3, -1, 1, Q("13 mm")))
sketch3.addConstraint(Sketcher.Constraint("DistanceX", -1, 1, 46, 3, Q("13 mm")))
sketch3.addConstraint(Sketcher.Constraint("DistanceX", 1, 3, -1, 1, Q("58.9 mm")))
sketch3.addConstraint(Sketcher.Constraint("DistanceX", -1, 1, 43, 3, Q("58.9 mm")))
sketch3.addConstraint(Sketcher.Constraint("DistanceX", 15, 3, -1, 1, Q("35.95 mm")))
sketch3.addConstraint(Sketcher.Constraint("DistanceX", -1, 1, 44, 3, Q("35.95 mm")))
sketch3.addConstraint(Sketcher.Constraint("DistanceX", 0, 3, -1, 1, Q("70.375 mm")))
sketch3.addConstraint(Sketcher.Constraint("DistanceX", 14, 3, -1, 1, Q("47.425 mm")))
sketch3.addConstraint(Sketcher.Constraint("DistanceX", 26, 3, -1, 1, Q("24.475 mm")))
sketch3.addConstraint(Sketcher.Constraint("DistanceX", -1, 1, 42, 3, Q("70.375 mm")))
sketch3.addConstraint(Sketcher.Constraint("DistanceX", -1, 1, 45, 3, Q("47.425 mm")))
sketch3.addConstraint(Sketcher.Constraint("DistanceX", -1, 1, 47, 3, Q("24.475 mm")))
sketch3.addConstraint(Sketcher.Constraint("DistanceY", -1, 1, 1, 3, Q("131.68934 mm")))
sketch3.addConstraint(Sketcher.Constraint("DistanceY", -1, 1, 2, 3, Q("72.063491 mm")))
sketch3.addConstraint(Sketcher.Constraint("DistanceY", 6, 3, -1, 1, Q("7.437642 mm")))
sketch3.addConstraint(Sketcher.Constraint("DistanceY", -1, 1, 7, 3, Q("12.437642 mm")))
sketch3.addConstraint(Sketcher.Constraint("DistanceY", 11, 3, -1, 1, Q("67.063491 mm")))
sketch3.addConstraint(Sketcher.Constraint("DistanceY", 12, 3, -1, 1, Q("126.68934 mm")))
sketch3.addConstraint(Sketcher.Constraint("DistanceY", -1, 1, 0, 3, Q("111.814057 mm")))
sketch3.addConstraint(Sketcher.Constraint("DistanceY", -1, 1, 3, 3, Q("91.938774 mm")))
sketch3.addConstraint(Sketcher.Constraint("DistanceY", -1, 1, 4, 3, Q("32.312925 mm")))
sketch3.addConstraint(Sketcher.Constraint("DistanceY", -1, 1, 5, 3, Q("52.188208 mm")))
sketch3.addConstraint(Sketcher.Constraint("DistanceY", 8, 3, -1, 1, Q("47.188208 mm")))
sketch3.addConstraint(Sketcher.Constraint("DistanceY", 9, 3, -1, 1, Q("27.312925 mm")))
sketch3.addConstraint(Sketcher.Constraint("DistanceY", 10, 3, -1, 1, Q("86.938774 mm")))
sketch3.addConstraint(Sketcher.Constraint("DistanceY", 13, 3, -1, 1, Q("106.814057 mm")))
pocket1 = doc.addObject("PartDesign::Pocket", "Pocket")
body.addObject(pocket1)
pocket1.Profile = sketch3
pocket1.Length = 7
pocket1.Reversed = True

# Sketch on XZ plane
sketch4 = doc.addObject("Sketcher::SketchObject", "Sketch003")
body.addObject(sketch4)
sketch4.AttachmentSupport = (doc.XZ_Plane, [""])
sketch4.MapMode = "FlatFace"
sketch4.AttachmentOffset = App.Placement(Vector(0, 0, -7), App.Rotation())
sketch4.addGeometry(Part.Circle(Vector(-81.25, -104.43566, 0), Vector(0, 0, 1), 2.75), False)
sketch4.addGeometry(Part.Circle(Vector(-81.25, 15.06434, 0), Vector(0, 0, 1), 2.75), False)
sketch4.addGeometry(Part.Circle(Vector(-81.25, 134.56434, 0), Vector(0, 0, 1), 2.75), False)
sketch4.addGeometry(Part.Circle(Vector(81.25, 110.06434, 0), Vector(0, 0, 1), 2.75), False)
sketch4.addGeometry(Part.Circle(Vector(81.25, -9.43566, 0), Vector(0, 0, 1), 2.75), False)
sketch4.addGeometry(Part.Circle(Vector(81.25, -128.93566, 0), Vector(0, 0, 1), 2.75), False)
sketch4.addConstraint(Sketcher.Constraint("Equal", 0, 1))
sketch4.addConstraint(Sketcher.Constraint("Equal", 1, 2))
sketch4.addConstraint(Sketcher.Constraint("Equal", 2, 3))
sketch4.addConstraint(Sketcher.Constraint("Equal", 3, 4))
sketch4.addConstraint(Sketcher.Constraint("Equal", 4, 5))
sketch4.addConstraint(Sketcher.Constraint("Vertical", 0, 3, 1, 3))
sketch4.addConstraint(Sketcher.Constraint("Vertical", 1, 3, 2, 3))
sketch4.addConstraint(Sketcher.Constraint("Vertical", 3, 3, 4, 3))
sketch4.addConstraint(Sketcher.Constraint("Vertical", 4, 3, 5, 3))
sketch4.addConstraint(Sketcher.Constraint("Diameter", 0, Q("5.5 mm")))
sketch4.addConstraint(Sketcher.Constraint("DistanceY", 0, 3, 2, 3, Q("239 mm")))
sketch4.addConstraint(Sketcher.Constraint("DistanceY", 1, 3, 3, 3, Q("95 mm")))
sketch4.addConstraint(Sketcher.Constraint("DistanceY", 0, 3, 4, 3, Q("95 mm")))
sketch4.addConstraint(Sketcher.Constraint("DistanceY", 5, 3, 1, 3, Q("144 mm")))
sketch4.addConstraint(Sketcher.Constraint("DistanceY", 0, 3, 1, 3, Q("119.5 mm")))
sketch4.addConstraint(Sketcher.Constraint("DistanceX", 2, 3, 3, 3, Q("162.5 mm")))
sketch4.addConstraint(Sketcher.Constraint("DistanceX", 0, 3, -1, 1, Q("81.25 mm")))
sketch4.addConstraint(Sketcher.Constraint("DistanceY", 0, 3, -1, 1, Q("104.43566 mm")))
pocket2 = doc.addObject("PartDesign::Pocket", "Pocket001")
body.addObject(pocket2)
pocket2.Profile = sketch4
pocket2.Length = 7
pocket2.Reversed = True

# Sketch on XZ plane
sketch5 = doc.addObject("Sketcher::SketchObject", "Sketch004")
body.addObject(sketch5)
sketch5.AttachmentSupport = (doc.XZ_Plane, [""])
sketch5.MapMode = "FlatFace"
add_polygon(sketch5, [(-90.25, -177.56434), (-90.25, -152.56434), (66.64, -152.56434), (66.64, -177.56434)])  # lines 0-3
sketch5.addConstraint(Sketcher.Constraint("Vertical", 0))
sketch5.addConstraint(Sketcher.Constraint("Horizontal", 1))
sketch5.addConstraint(Sketcher.Constraint("Vertical", 2))
sketch5.addConstraint(Sketcher.Constraint("Horizontal", 3))
sketch5.addConstraint(Sketcher.Constraint("DistanceY", 0, 1, 0, 2, Q("25 mm")))
sketch5.addConstraint(Sketcher.Constraint("DistanceX", 1, 1, 1, 2, Q("156.89 mm")))
sketch5.addConstraint(Sketcher.Constraint("DistanceX", 0, 2, -1, 1, Q("90.25 mm")))
sketch5.addConstraint(Sketcher.Constraint("DistanceY", 0, 2, -1, 1, Q("152.56434 mm")))
pad3 = doc.addObject("PartDesign::Pad", "Pad002")
body.addObject(pad3)
pad3.Profile = sketch5
pad3.Length = 5
pad3.Reversed = True
doc.recompute()

fillet = doc.addObject("PartDesign::Fillet", "Fillet")
body.addObject(fillet)
fillet.Base = (pad3, edges_at(pad3, [(-90.25, 2.5, -177.564)]))
fillet.Radius = 10

# Sketch on XZ plane
sketch6 = doc.addObject("Sketcher::SketchObject", "Sketch005")
body.addObject(sketch6)
sketch6.AttachmentSupport = (doc.XZ_Plane, [""])
sketch6.MapMode = "FlatFace"
sketch6.AttachmentOffset = App.Placement(Vector(0, 0, -7), App.Rotation())
add_polygon(sketch6, [(-90.25, -152.56434), (-90.25, -142.56434), (90.25, -142.56434), (90.25, -152.56434)])  # lines 0-3
sketch6.addConstraint(Sketcher.Constraint("Vertical", 0))
sketch6.addConstraint(Sketcher.Constraint("Horizontal", 1))
sketch6.addConstraint(Sketcher.Constraint("Vertical", 2))
sketch6.addConstraint(Sketcher.Constraint("Horizontal", 3))
sketch6.addConstraint(Sketcher.Constraint("DistanceY", 0, 1, 0, 2, Q("10 mm")))
sketch6.addConstraint(Sketcher.Constraint("DistanceX", 1, 1, 1, 2, Q("180.5 mm")))
sketch6.addConstraint(Sketcher.Constraint("DistanceX", 0, 2, -1, 1, Q("90.25 mm")))
sketch6.addConstraint(Sketcher.Constraint("DistanceY", 0, 2, -1, 1, Q("142.56434 mm")))
pad4 = doc.addObject("PartDesign::Pad", "Pad003")
body.addObject(pad4)
pad4.Profile = sketch6
pad4.Length = 12
pad4.Reversed = True

# Sketch on XY plane
sketch7 = doc.addObject("Sketcher::SketchObject", "Sketch006")
body.addObject(sketch7)
sketch7.AttachmentSupport = (doc.XY_Plane, [""])
sketch7.MapMode = "FlatFace"
sketch7.AttachmentOffset = App.Placement(Vector(0, 0, -152.56434), App.Rotation())
add_polygon(sketch7, [(65.565, 63.15), (65.565, 8.41), (-78.75, 8.41), (-78.75, 63.15)])  # lines 0-3
sketch7.addConstraint(Sketcher.Constraint("Vertical", 0))
sketch7.addConstraint(Sketcher.Constraint("Horizontal", 1))
sketch7.addConstraint(Sketcher.Constraint("Vertical", 2))
sketch7.addConstraint(Sketcher.Constraint("Horizontal", 3))
sketch7.addConstraint(Sketcher.Constraint("DistanceY", 0, 2, 0, 1, Q("54.74 mm")))
sketch7.addConstraint(Sketcher.Constraint("DistanceX", 1, 2, 1, 1, Q("144.315 mm")))
sketch7.addConstraint(Sketcher.Constraint("DistanceY", -1, 1, 0, 2, Q("8.41 mm")))
sketch7.addConstraint(Sketcher.Constraint("DistanceX", 1, 2, -1, 1, Q("78.75 mm")))
pocket3 = doc.addObject("PartDesign::Pocket", "Pocket002")
body.addObject(pocket3)
pocket3.Profile = sketch7
pocket3.Length = 6
pocket3.Reversed = True

# Sketch on XY plane
sketch8 = doc.addObject("Sketcher::SketchObject", "Sketch007")
body.addObject(sketch8)
sketch8.AttachmentSupport = (doc.XY_Plane, [""])
sketch8.MapMode = "FlatFace"
sketch8.AttachmentOffset = App.Placement(Vector(0, 0, -146.56434), App.Rotation())
sketch8.addGeometry(Part.Circle(Vector(58.485, 14.49, 0), Vector(0, 0, 1), 2.159), False)
sketch8.addGeometry(Part.Circle(Vector(-6.285, 14.49, 0), Vector(0, 0, 1), 2.159), False)
sketch8.addGeometry(Part.Circle(Vector(-71.055, 14.49, 0), Vector(0, 0, 1), 2.159), False)
sketch8.addConstraint(Sketcher.Constraint("Equal", 0, 1))
sketch8.addConstraint(Sketcher.Constraint("Equal", 1, 2))
sketch8.addConstraint(Sketcher.Constraint("Horizontal", 0, 3, 1, 3))
sketch8.addConstraint(Sketcher.Constraint("Horizontal", 1, 3, 2, 3))
sketch8.addConstraint(Sketcher.Constraint("Diameter", 0, Q("4.318 mm")))
sketch8.addConstraint(Sketcher.Constraint("DistanceY", -1, 1, 0, 3, Q("14.49 mm")))
sketch8.addConstraint(Sketcher.Constraint("DistanceX", 1, 3, 0, 3, Q("64.77 mm")))
sketch8.addConstraint(Sketcher.Constraint("DistanceX", 2, 3, 1, 3, Q("64.77 mm")))
sketch8.addConstraint(Sketcher.Constraint("DistanceX", -1, 1, 0, 3, Q("58.485 mm")))
pocket4 = doc.addObject("PartDesign::Pocket", "Pocket003")
body.addObject(pocket4)
pocket4.Profile = sketch8
pocket4.Length = 4
pocket4.Reversed = True

# Sketch on XZ plane
sketch9 = doc.addObject("Sketcher::SketchObject", "Sketch008")
body.addObject(sketch9)
sketch9.AttachmentSupport = (doc.XZ_Plane, [""])
sketch9.MapMode = "FlatFace"
sketch9.addGeometry(Part.LineSegment(Vector(90.25, -152.56434, 0), Vector(90.25, 152.56434, 0)), False)  # 0
sketch9.addGeometry(Part.LineSegment(Vector(90.25, 152.56434, 0), Vector(-90.25, 152.56434, 0)), False)  # 1
sketch9.addGeometry(Part.LineSegment(Vector(-90.25, 152.56434, 0), Vector(-90.25, -167.56434, 0)), False)  # 2
sketch9.addGeometry(Part.ArcOfCircle(Part.Circle(Vector(-80.25, -167.56434, 0), Vector(0, 0, 1), 10), math.radians(-180), math.radians(-90)), False)  # 3
sketch9.addGeometry(Part.LineSegment(Vector(-80.25, -177.56434, 0), Vector(66.64, -177.56434, 0)), False)  # 4
sketch9.addGeometry(Part.LineSegment(Vector(66.64, -177.56434, 0), Vector(66.64, -152.56434, 0)), False)  # 5
sketch9.addGeometry(Part.LineSegment(Vector(66.64, -152.56434, 0), Vector(90.25, -152.56434, 0)), False)  # 6
add_polygon(sketch9, [(87.25, -142.56434), (-87.25, -142.56434), (-87.25, 146.56434), (87.25, 146.56434)])  # lines 7-10
sketch9.addConstraint(Sketcher.Constraint("Coincident", 0, 2, 1, 1))
sketch9.addConstraint(Sketcher.Constraint("Coincident", 1, 2, 2, 1))
sketch9.addConstraint(Sketcher.Constraint("Tangent", 2, 2, 3, 1))
sketch9.addConstraint(Sketcher.Constraint("Tangent", 3, 2, 4, 1))
sketch9.addConstraint(Sketcher.Constraint("Coincident", 4, 2, 5, 1))
sketch9.addConstraint(Sketcher.Constraint("Coincident", 5, 2, 6, 1))
sketch9.addConstraint(Sketcher.Constraint("Coincident", 6, 2, 0, 1))
sketch9.addConstraint(Sketcher.Constraint("Vertical", 0))
sketch9.addConstraint(Sketcher.Constraint("Horizontal", 1))
sketch9.addConstraint(Sketcher.Constraint("Vertical", 2))
sketch9.addConstraint(Sketcher.Constraint("Horizontal", 4))
sketch9.addConstraint(Sketcher.Constraint("Vertical", 5))
sketch9.addConstraint(Sketcher.Constraint("Horizontal", 6))
sketch9.addConstraint(Sketcher.Constraint("Horizontal", 7))
sketch9.addConstraint(Sketcher.Constraint("Vertical", 8))
sketch9.addConstraint(Sketcher.Constraint("Horizontal", 9))
sketch9.addConstraint(Sketcher.Constraint("Vertical", 10))
sketch9.addConstraint(Sketcher.Constraint("Symmetric", 1, 2, 6, 2, -1, 1))
sketch9.addConstraint(Sketcher.Constraint("Radius", 3, Q("10 mm")))
sketch9.addConstraint(Sketcher.Constraint("DistanceY", 5, 1, 5, 2, Q("25 mm")))
sketch9.addConstraint(Sketcher.Constraint("DistanceX", 1, 2, 1, 1, Q("180.5 mm")))
sketch9.addConstraint(Sketcher.Constraint("DistanceX", 7, 2, 7, 1, Q("174.5 mm")))
sketch9.addConstraint(Sketcher.Constraint("DistanceX", 2, 2, 7, 2, Q("3 mm")))
sketch9.addConstraint(Sketcher.Constraint("DistanceY", 2, 2, 7, 2, Q("25 mm")))
sketch9.addConstraint(Sketcher.Constraint("DistanceY", 8, 2, 1, 2, Q("6 mm")))
sketch9.addConstraint(Sketcher.Constraint("DistanceX", 4, 1, 4, 2, Q("146.89 mm")))
sketch9.addConstraint(Sketcher.Constraint("DistanceY", 0, 1, 0, 2, Q("305.128679 mm")))
pad5 = doc.addObject("PartDesign::Pad", "Pad004")
body.addObject(pad5)
pad5.Profile = sketch9
pad5.Length = 2

# Sketch on XZ plane
sketch10 = doc.addObject("Sketcher::SketchObject", "Sketch009")
body.addObject(sketch10)
sketch10.AttachmentSupport = (doc.XZ_Plane, [""])
sketch10.MapMode = "FlatFace"
sketch10.AttachmentOffset = App.Placement(Vector(0, 0, 2), App.Rotation())
sketch10.addGeometry(Part.Circle(Vector(44.14, -166.31434, 0), Vector(0, 0, 1), 1.63195), False)
sketch10.addConstraint(Sketcher.Constraint("Diameter", 0, Q("3.2639 mm")))
sketch10.addConstraint(Sketcher.Constraint("DistanceX", -1, 1, 0, 3, Q("44.14 mm")))
sketch10.addConstraint(Sketcher.Constraint("DistanceY", 0, 3, -1, 1, Q("166.31434 mm")))
doc.recompute()
hole = doc.addObject("PartDesign::Hole", "Hole")
body.addObject(hole)
hole.Profile = sketch10
hole.ThreadType = "None"
hole.Diameter = 3.2639
hole.DepthType = "Dimension"
hole.Depth = 9
hole.DrillPoint = "Angled"
hole.DrillPointAngle = 118
hole.HoleCutType = "Countersink"
hole.HoleCutDiameter = 6.477
hole.HoleCutCountersinkAngle = 82
doc.recompute()

fillet2 = doc.addObject("PartDesign::Fillet", "Fillet001")
body.addObject(fillet2)
fillet2.Base = (hole, edges_at(hole, [
    (-90.25, 12, -152.564),
    (-90.25, 2.5, 152.564),
    (90.25, 2.5, 152.564),
    (90.25, 8.5, -152.564),
]))
fillet2.Radius = 6

doc.recompute()
